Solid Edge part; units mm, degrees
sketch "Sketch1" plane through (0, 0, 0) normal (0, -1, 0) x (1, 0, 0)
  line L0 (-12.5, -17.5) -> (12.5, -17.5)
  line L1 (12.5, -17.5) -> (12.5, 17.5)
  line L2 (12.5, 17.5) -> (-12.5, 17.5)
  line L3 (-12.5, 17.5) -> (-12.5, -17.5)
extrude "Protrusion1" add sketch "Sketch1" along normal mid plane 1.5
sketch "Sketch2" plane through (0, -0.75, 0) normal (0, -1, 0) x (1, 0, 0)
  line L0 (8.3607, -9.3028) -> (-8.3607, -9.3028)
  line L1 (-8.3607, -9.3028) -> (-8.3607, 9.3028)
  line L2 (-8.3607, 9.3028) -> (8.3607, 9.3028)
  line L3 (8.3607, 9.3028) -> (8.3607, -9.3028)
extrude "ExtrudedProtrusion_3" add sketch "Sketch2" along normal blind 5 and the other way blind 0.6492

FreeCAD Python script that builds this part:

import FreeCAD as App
import Part
import Sketcher
from FreeCAD import Vector
Q = App.Units.Quantity

doc = App.newDocument("Part")
body = doc.addObject("PartDesign::Body", "Body")

sketch1 = body.newObject("Sketcher::SketchObject", "Sketch")
sketch1.AttachmentSupport = (doc.getObject("XZ_Plane"), [""])
sketch1.MapMode = "FlatFace"
sketch1.addGeometry([
    Part.LineSegment(Vector(-12, 18, 0), Vector(-12, -18, 0)),
    Part.LineSegment(Vector(-12, -18, 0), Vector(12, -18, 0)),
    Part.LineSegment(Vector(12, -18, 0), Vector(12, 18, 0)),
    Part.LineSegment(Vector(12, 18, 0), Vector(-12, 18, 0)),
], False)
sketch1.addConstraint([
    Sketcher.Constraint("Coincident", 0, 2, 1, 1),
    Sketcher.Constraint("Coincident", 1, 2, 2, 1),
    Sketcher.Constraint("Coincident", 2, 2, 3, 1),
    Sketcher.Constraint("Coincident", 3, 2, 0, 1),
    Sketcher.Constraint("Vertical", 0),
    Sketcher.Constraint("Horizontal", 1),
    Sketcher.Constraint("Vertical", 2),
    Sketcher.Constraint("Horizontal", 3),
    Sketcher.Constraint("Symmetric", 0, 2, 2, 2, -1, 1),
    Sketcher.Constraint("DistanceX", 1, 1, 1, 2, Q("25 mm")),
    Sketcher.Constraint("DistanceY", 0, 2, 0, 1, Q("35 mm")),
])
pad1 = body.newObject("PartDesign::Pad", "Pad")
pad1.Profile = sketch1
pad1.Length = 1.5
pad1.Midplane = True

sketch2 = body.newObject("Sketcher::SketchObject", "Sketch001")
sketch2.AttachmentSupport = (doc.getObject("XZ_Plane"), [""])
sketch2.MapMode = "FlatFace"
sketch2.AttachmentOffset = App.Placement(Vector(0, 0, 0.75), App.Rotation())
sketch2.addGeometry([
    Part.LineSegment(Vector(-8, -9, 0), Vector(8, -9, 0)),
    Part.LineSegment(Vector(8, -9, 0), Vector(8, 9, 0)),
    Part.LineSegment(Vector(8, 9, 0), Vector(-8, 9, 0)),
    Part.LineSegment(Vector(-8, 9, 0), Vector(-8, -9, 0)),
], False)
sketch2.addConstraint([
    Sketcher.Constraint("Coincident", 0, 2, 1, 1),
    Sketcher.Constraint("Coincident", 1, 2, 2, 1),
    Sketcher.Constraint("Coincident", 2, 2, 3, 1),
    Sketcher.Constraint("Coincident", 3, 2, 0, 1),
    Sketcher.Constraint("Horizontal", 0),
    Sketcher.Constraint("Vertical", 1),
    Sketcher.Constraint("Horizontal", 2),
    Sketcher.Constraint("Vertical", 3),
    Sketcher.Constraint("Symmetric", 0, 2, 2, 2, -1, 1),
    Sketcher.Constraint("DistanceX", 0, 1, 0, 2, Q("16.7214 mm")),
    Sketcher.Constraint("DistanceY", 1, 1, 1, 2, Q("18.6056 mm")),
])
pad2 = body.newObject("PartDesign::Pad", "Pad001")
pad2.Profile = sketch2
pad2.Type = "TwoLengths"
pad2.Length = 5
pad2.Length2 = 0.6492

doc.recompute()
